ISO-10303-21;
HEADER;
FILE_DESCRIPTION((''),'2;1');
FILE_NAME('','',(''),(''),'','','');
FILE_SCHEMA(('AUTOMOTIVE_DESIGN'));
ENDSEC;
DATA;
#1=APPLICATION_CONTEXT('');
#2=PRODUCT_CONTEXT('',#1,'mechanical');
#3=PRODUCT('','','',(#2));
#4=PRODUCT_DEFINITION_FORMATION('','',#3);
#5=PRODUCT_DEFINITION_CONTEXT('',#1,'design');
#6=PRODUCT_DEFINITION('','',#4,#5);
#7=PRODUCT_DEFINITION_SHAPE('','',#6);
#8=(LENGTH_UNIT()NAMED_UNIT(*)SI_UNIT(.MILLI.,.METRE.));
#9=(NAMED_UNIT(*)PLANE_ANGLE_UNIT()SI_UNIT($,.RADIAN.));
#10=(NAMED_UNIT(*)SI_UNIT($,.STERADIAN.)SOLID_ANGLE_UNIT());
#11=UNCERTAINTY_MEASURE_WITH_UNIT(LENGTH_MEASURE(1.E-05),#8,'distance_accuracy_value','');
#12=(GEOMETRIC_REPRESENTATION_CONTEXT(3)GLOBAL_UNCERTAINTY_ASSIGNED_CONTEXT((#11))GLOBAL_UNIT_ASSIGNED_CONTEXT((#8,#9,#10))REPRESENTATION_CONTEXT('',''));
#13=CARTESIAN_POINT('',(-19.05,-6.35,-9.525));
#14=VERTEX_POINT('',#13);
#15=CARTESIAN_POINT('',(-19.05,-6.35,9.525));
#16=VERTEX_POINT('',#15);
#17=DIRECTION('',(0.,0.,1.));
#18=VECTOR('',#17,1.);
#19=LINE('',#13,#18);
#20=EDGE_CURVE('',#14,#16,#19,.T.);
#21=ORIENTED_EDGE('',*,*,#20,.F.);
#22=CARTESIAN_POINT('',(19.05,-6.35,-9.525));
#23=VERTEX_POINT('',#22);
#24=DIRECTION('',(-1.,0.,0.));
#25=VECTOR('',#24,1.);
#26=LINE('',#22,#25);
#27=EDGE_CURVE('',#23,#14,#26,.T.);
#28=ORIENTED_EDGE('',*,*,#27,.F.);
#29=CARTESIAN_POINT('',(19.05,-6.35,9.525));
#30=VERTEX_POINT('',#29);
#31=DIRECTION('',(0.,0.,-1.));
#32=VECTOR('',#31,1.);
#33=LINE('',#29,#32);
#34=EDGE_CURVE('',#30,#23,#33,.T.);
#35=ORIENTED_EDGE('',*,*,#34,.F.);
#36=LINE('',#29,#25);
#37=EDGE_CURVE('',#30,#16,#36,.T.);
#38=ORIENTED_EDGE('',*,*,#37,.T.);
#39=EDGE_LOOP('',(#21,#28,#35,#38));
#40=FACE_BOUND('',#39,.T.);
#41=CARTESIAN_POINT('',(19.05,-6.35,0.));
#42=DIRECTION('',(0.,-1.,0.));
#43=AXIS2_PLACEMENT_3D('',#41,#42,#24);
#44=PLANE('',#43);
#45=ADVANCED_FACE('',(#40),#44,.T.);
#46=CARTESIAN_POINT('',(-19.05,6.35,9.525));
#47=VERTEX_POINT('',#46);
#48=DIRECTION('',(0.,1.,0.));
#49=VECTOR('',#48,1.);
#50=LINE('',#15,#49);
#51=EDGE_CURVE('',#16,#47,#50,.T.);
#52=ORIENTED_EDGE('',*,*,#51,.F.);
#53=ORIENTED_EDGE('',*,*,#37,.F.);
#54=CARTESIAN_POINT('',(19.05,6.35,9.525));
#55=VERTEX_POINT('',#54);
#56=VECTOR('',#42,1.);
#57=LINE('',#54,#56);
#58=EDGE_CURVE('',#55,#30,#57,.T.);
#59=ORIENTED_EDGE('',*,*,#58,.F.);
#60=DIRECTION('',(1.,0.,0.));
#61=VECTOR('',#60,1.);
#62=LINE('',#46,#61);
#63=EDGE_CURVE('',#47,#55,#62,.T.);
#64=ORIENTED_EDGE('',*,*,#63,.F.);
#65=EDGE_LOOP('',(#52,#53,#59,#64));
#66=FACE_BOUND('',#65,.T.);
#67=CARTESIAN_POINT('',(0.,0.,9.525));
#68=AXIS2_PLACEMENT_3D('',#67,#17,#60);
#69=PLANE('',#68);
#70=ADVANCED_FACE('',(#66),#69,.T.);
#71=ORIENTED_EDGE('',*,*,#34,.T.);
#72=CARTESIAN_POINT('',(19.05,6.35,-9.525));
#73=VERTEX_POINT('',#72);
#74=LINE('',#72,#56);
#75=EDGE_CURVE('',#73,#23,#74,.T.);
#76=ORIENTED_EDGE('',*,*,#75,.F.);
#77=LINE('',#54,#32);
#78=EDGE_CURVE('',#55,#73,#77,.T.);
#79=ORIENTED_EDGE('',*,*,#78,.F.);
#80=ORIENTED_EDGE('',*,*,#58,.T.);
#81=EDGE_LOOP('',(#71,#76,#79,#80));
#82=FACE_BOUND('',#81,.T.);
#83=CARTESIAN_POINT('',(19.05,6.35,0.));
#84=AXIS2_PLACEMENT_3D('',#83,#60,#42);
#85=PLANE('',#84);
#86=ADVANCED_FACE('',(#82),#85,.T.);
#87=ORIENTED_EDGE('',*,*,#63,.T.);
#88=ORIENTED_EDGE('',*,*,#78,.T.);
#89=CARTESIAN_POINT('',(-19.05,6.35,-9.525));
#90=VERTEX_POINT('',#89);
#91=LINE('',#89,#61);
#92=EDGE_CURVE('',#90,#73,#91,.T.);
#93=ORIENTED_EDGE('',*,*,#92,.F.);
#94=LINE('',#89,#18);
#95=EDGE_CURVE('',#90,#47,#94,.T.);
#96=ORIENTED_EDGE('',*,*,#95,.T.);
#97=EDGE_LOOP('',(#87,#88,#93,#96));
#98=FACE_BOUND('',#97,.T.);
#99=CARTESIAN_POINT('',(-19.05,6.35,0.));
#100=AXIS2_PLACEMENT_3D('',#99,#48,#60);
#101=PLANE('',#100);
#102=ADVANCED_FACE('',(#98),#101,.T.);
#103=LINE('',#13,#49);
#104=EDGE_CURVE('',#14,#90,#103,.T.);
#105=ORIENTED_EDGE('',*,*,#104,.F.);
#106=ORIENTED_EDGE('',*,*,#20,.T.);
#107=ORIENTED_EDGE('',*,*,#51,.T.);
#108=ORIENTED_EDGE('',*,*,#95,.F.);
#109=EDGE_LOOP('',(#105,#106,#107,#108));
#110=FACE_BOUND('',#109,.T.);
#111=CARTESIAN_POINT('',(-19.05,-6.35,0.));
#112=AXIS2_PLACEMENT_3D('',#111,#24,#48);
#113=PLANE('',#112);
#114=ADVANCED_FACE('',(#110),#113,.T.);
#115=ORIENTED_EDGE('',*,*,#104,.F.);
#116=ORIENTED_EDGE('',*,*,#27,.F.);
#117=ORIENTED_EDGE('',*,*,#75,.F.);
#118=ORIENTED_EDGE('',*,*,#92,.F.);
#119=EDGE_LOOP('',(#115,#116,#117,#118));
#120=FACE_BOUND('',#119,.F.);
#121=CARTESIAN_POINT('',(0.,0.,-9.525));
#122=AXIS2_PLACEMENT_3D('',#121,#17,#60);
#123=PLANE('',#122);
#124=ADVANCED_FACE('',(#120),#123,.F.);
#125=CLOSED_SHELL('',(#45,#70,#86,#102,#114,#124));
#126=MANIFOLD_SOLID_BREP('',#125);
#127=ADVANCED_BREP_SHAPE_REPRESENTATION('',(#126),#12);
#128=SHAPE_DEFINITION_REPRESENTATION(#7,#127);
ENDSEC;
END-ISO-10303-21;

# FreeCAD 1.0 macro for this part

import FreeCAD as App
import Part
import Sketcher
Q = App.Units.Quantity

doc = App.newDocument("Part")
body = doc.addObject("PartDesign::Body", "Body")

# Sketch on XY plane
sketch1 = body.newObject("Sketcher::SketchObject", "Sketch")
sketch1.AttachmentSupport = (doc.getObject("XY_Plane"), [""])
sketch1.MapMode = "FlatFace"
sketch1.addGeometry([
    Part.LineSegment(App.Vector(19.05, 6.35, 0), App.Vector(-19.05, 6.35, 0)),
    Part.LineSegment(App.Vector(-19.05, 6.35, 0), App.Vector(-19.05, -6.35, 0)),
    Part.LineSegment(App.Vector(-19.05, -6.35, 0), App.Vector(19.05, -6.35, 0)),
    Part.LineSegment(App.Vector(19.05, -6.35, 0), App.Vector(19.05, 6.35, 0)),
], False)
sketch1.addConstraint([
    Sketcher.Constraint("Coincident", 0, 2, 1, 1),
    Sketcher.Constraint("Coincident", 1, 2, 2, 1),
    Sketcher.Constraint("Coincident", 2, 2, 3, 1),
    Sketcher.Constraint("Coincident", 3, 2, 0, 1),
    Sketcher.Constraint("Horizontal", 0),
    Sketcher.Constraint("Vertical", 1),
    Sketcher.Constraint("Horizontal", 2),
    Sketcher.Constraint("Vertical", 3),
    Sketcher.Constraint("Symmetric", 0, 2, 2, 2, -1, 1),
    Sketcher.Constraint("DistanceX", 0, 2, 0, 1, Q("1.5 in")),
    Sketcher.Constraint("DistanceY", 1, 2, 1, 1, Q("0.5 in")),
])
pad1 = body.newObject("PartDesign::Pad", "Pad")
pad1.Profile = sketch1
pad1.Length = Q("0.75 in")
pad1.Midplane = True

doc.recompute()
